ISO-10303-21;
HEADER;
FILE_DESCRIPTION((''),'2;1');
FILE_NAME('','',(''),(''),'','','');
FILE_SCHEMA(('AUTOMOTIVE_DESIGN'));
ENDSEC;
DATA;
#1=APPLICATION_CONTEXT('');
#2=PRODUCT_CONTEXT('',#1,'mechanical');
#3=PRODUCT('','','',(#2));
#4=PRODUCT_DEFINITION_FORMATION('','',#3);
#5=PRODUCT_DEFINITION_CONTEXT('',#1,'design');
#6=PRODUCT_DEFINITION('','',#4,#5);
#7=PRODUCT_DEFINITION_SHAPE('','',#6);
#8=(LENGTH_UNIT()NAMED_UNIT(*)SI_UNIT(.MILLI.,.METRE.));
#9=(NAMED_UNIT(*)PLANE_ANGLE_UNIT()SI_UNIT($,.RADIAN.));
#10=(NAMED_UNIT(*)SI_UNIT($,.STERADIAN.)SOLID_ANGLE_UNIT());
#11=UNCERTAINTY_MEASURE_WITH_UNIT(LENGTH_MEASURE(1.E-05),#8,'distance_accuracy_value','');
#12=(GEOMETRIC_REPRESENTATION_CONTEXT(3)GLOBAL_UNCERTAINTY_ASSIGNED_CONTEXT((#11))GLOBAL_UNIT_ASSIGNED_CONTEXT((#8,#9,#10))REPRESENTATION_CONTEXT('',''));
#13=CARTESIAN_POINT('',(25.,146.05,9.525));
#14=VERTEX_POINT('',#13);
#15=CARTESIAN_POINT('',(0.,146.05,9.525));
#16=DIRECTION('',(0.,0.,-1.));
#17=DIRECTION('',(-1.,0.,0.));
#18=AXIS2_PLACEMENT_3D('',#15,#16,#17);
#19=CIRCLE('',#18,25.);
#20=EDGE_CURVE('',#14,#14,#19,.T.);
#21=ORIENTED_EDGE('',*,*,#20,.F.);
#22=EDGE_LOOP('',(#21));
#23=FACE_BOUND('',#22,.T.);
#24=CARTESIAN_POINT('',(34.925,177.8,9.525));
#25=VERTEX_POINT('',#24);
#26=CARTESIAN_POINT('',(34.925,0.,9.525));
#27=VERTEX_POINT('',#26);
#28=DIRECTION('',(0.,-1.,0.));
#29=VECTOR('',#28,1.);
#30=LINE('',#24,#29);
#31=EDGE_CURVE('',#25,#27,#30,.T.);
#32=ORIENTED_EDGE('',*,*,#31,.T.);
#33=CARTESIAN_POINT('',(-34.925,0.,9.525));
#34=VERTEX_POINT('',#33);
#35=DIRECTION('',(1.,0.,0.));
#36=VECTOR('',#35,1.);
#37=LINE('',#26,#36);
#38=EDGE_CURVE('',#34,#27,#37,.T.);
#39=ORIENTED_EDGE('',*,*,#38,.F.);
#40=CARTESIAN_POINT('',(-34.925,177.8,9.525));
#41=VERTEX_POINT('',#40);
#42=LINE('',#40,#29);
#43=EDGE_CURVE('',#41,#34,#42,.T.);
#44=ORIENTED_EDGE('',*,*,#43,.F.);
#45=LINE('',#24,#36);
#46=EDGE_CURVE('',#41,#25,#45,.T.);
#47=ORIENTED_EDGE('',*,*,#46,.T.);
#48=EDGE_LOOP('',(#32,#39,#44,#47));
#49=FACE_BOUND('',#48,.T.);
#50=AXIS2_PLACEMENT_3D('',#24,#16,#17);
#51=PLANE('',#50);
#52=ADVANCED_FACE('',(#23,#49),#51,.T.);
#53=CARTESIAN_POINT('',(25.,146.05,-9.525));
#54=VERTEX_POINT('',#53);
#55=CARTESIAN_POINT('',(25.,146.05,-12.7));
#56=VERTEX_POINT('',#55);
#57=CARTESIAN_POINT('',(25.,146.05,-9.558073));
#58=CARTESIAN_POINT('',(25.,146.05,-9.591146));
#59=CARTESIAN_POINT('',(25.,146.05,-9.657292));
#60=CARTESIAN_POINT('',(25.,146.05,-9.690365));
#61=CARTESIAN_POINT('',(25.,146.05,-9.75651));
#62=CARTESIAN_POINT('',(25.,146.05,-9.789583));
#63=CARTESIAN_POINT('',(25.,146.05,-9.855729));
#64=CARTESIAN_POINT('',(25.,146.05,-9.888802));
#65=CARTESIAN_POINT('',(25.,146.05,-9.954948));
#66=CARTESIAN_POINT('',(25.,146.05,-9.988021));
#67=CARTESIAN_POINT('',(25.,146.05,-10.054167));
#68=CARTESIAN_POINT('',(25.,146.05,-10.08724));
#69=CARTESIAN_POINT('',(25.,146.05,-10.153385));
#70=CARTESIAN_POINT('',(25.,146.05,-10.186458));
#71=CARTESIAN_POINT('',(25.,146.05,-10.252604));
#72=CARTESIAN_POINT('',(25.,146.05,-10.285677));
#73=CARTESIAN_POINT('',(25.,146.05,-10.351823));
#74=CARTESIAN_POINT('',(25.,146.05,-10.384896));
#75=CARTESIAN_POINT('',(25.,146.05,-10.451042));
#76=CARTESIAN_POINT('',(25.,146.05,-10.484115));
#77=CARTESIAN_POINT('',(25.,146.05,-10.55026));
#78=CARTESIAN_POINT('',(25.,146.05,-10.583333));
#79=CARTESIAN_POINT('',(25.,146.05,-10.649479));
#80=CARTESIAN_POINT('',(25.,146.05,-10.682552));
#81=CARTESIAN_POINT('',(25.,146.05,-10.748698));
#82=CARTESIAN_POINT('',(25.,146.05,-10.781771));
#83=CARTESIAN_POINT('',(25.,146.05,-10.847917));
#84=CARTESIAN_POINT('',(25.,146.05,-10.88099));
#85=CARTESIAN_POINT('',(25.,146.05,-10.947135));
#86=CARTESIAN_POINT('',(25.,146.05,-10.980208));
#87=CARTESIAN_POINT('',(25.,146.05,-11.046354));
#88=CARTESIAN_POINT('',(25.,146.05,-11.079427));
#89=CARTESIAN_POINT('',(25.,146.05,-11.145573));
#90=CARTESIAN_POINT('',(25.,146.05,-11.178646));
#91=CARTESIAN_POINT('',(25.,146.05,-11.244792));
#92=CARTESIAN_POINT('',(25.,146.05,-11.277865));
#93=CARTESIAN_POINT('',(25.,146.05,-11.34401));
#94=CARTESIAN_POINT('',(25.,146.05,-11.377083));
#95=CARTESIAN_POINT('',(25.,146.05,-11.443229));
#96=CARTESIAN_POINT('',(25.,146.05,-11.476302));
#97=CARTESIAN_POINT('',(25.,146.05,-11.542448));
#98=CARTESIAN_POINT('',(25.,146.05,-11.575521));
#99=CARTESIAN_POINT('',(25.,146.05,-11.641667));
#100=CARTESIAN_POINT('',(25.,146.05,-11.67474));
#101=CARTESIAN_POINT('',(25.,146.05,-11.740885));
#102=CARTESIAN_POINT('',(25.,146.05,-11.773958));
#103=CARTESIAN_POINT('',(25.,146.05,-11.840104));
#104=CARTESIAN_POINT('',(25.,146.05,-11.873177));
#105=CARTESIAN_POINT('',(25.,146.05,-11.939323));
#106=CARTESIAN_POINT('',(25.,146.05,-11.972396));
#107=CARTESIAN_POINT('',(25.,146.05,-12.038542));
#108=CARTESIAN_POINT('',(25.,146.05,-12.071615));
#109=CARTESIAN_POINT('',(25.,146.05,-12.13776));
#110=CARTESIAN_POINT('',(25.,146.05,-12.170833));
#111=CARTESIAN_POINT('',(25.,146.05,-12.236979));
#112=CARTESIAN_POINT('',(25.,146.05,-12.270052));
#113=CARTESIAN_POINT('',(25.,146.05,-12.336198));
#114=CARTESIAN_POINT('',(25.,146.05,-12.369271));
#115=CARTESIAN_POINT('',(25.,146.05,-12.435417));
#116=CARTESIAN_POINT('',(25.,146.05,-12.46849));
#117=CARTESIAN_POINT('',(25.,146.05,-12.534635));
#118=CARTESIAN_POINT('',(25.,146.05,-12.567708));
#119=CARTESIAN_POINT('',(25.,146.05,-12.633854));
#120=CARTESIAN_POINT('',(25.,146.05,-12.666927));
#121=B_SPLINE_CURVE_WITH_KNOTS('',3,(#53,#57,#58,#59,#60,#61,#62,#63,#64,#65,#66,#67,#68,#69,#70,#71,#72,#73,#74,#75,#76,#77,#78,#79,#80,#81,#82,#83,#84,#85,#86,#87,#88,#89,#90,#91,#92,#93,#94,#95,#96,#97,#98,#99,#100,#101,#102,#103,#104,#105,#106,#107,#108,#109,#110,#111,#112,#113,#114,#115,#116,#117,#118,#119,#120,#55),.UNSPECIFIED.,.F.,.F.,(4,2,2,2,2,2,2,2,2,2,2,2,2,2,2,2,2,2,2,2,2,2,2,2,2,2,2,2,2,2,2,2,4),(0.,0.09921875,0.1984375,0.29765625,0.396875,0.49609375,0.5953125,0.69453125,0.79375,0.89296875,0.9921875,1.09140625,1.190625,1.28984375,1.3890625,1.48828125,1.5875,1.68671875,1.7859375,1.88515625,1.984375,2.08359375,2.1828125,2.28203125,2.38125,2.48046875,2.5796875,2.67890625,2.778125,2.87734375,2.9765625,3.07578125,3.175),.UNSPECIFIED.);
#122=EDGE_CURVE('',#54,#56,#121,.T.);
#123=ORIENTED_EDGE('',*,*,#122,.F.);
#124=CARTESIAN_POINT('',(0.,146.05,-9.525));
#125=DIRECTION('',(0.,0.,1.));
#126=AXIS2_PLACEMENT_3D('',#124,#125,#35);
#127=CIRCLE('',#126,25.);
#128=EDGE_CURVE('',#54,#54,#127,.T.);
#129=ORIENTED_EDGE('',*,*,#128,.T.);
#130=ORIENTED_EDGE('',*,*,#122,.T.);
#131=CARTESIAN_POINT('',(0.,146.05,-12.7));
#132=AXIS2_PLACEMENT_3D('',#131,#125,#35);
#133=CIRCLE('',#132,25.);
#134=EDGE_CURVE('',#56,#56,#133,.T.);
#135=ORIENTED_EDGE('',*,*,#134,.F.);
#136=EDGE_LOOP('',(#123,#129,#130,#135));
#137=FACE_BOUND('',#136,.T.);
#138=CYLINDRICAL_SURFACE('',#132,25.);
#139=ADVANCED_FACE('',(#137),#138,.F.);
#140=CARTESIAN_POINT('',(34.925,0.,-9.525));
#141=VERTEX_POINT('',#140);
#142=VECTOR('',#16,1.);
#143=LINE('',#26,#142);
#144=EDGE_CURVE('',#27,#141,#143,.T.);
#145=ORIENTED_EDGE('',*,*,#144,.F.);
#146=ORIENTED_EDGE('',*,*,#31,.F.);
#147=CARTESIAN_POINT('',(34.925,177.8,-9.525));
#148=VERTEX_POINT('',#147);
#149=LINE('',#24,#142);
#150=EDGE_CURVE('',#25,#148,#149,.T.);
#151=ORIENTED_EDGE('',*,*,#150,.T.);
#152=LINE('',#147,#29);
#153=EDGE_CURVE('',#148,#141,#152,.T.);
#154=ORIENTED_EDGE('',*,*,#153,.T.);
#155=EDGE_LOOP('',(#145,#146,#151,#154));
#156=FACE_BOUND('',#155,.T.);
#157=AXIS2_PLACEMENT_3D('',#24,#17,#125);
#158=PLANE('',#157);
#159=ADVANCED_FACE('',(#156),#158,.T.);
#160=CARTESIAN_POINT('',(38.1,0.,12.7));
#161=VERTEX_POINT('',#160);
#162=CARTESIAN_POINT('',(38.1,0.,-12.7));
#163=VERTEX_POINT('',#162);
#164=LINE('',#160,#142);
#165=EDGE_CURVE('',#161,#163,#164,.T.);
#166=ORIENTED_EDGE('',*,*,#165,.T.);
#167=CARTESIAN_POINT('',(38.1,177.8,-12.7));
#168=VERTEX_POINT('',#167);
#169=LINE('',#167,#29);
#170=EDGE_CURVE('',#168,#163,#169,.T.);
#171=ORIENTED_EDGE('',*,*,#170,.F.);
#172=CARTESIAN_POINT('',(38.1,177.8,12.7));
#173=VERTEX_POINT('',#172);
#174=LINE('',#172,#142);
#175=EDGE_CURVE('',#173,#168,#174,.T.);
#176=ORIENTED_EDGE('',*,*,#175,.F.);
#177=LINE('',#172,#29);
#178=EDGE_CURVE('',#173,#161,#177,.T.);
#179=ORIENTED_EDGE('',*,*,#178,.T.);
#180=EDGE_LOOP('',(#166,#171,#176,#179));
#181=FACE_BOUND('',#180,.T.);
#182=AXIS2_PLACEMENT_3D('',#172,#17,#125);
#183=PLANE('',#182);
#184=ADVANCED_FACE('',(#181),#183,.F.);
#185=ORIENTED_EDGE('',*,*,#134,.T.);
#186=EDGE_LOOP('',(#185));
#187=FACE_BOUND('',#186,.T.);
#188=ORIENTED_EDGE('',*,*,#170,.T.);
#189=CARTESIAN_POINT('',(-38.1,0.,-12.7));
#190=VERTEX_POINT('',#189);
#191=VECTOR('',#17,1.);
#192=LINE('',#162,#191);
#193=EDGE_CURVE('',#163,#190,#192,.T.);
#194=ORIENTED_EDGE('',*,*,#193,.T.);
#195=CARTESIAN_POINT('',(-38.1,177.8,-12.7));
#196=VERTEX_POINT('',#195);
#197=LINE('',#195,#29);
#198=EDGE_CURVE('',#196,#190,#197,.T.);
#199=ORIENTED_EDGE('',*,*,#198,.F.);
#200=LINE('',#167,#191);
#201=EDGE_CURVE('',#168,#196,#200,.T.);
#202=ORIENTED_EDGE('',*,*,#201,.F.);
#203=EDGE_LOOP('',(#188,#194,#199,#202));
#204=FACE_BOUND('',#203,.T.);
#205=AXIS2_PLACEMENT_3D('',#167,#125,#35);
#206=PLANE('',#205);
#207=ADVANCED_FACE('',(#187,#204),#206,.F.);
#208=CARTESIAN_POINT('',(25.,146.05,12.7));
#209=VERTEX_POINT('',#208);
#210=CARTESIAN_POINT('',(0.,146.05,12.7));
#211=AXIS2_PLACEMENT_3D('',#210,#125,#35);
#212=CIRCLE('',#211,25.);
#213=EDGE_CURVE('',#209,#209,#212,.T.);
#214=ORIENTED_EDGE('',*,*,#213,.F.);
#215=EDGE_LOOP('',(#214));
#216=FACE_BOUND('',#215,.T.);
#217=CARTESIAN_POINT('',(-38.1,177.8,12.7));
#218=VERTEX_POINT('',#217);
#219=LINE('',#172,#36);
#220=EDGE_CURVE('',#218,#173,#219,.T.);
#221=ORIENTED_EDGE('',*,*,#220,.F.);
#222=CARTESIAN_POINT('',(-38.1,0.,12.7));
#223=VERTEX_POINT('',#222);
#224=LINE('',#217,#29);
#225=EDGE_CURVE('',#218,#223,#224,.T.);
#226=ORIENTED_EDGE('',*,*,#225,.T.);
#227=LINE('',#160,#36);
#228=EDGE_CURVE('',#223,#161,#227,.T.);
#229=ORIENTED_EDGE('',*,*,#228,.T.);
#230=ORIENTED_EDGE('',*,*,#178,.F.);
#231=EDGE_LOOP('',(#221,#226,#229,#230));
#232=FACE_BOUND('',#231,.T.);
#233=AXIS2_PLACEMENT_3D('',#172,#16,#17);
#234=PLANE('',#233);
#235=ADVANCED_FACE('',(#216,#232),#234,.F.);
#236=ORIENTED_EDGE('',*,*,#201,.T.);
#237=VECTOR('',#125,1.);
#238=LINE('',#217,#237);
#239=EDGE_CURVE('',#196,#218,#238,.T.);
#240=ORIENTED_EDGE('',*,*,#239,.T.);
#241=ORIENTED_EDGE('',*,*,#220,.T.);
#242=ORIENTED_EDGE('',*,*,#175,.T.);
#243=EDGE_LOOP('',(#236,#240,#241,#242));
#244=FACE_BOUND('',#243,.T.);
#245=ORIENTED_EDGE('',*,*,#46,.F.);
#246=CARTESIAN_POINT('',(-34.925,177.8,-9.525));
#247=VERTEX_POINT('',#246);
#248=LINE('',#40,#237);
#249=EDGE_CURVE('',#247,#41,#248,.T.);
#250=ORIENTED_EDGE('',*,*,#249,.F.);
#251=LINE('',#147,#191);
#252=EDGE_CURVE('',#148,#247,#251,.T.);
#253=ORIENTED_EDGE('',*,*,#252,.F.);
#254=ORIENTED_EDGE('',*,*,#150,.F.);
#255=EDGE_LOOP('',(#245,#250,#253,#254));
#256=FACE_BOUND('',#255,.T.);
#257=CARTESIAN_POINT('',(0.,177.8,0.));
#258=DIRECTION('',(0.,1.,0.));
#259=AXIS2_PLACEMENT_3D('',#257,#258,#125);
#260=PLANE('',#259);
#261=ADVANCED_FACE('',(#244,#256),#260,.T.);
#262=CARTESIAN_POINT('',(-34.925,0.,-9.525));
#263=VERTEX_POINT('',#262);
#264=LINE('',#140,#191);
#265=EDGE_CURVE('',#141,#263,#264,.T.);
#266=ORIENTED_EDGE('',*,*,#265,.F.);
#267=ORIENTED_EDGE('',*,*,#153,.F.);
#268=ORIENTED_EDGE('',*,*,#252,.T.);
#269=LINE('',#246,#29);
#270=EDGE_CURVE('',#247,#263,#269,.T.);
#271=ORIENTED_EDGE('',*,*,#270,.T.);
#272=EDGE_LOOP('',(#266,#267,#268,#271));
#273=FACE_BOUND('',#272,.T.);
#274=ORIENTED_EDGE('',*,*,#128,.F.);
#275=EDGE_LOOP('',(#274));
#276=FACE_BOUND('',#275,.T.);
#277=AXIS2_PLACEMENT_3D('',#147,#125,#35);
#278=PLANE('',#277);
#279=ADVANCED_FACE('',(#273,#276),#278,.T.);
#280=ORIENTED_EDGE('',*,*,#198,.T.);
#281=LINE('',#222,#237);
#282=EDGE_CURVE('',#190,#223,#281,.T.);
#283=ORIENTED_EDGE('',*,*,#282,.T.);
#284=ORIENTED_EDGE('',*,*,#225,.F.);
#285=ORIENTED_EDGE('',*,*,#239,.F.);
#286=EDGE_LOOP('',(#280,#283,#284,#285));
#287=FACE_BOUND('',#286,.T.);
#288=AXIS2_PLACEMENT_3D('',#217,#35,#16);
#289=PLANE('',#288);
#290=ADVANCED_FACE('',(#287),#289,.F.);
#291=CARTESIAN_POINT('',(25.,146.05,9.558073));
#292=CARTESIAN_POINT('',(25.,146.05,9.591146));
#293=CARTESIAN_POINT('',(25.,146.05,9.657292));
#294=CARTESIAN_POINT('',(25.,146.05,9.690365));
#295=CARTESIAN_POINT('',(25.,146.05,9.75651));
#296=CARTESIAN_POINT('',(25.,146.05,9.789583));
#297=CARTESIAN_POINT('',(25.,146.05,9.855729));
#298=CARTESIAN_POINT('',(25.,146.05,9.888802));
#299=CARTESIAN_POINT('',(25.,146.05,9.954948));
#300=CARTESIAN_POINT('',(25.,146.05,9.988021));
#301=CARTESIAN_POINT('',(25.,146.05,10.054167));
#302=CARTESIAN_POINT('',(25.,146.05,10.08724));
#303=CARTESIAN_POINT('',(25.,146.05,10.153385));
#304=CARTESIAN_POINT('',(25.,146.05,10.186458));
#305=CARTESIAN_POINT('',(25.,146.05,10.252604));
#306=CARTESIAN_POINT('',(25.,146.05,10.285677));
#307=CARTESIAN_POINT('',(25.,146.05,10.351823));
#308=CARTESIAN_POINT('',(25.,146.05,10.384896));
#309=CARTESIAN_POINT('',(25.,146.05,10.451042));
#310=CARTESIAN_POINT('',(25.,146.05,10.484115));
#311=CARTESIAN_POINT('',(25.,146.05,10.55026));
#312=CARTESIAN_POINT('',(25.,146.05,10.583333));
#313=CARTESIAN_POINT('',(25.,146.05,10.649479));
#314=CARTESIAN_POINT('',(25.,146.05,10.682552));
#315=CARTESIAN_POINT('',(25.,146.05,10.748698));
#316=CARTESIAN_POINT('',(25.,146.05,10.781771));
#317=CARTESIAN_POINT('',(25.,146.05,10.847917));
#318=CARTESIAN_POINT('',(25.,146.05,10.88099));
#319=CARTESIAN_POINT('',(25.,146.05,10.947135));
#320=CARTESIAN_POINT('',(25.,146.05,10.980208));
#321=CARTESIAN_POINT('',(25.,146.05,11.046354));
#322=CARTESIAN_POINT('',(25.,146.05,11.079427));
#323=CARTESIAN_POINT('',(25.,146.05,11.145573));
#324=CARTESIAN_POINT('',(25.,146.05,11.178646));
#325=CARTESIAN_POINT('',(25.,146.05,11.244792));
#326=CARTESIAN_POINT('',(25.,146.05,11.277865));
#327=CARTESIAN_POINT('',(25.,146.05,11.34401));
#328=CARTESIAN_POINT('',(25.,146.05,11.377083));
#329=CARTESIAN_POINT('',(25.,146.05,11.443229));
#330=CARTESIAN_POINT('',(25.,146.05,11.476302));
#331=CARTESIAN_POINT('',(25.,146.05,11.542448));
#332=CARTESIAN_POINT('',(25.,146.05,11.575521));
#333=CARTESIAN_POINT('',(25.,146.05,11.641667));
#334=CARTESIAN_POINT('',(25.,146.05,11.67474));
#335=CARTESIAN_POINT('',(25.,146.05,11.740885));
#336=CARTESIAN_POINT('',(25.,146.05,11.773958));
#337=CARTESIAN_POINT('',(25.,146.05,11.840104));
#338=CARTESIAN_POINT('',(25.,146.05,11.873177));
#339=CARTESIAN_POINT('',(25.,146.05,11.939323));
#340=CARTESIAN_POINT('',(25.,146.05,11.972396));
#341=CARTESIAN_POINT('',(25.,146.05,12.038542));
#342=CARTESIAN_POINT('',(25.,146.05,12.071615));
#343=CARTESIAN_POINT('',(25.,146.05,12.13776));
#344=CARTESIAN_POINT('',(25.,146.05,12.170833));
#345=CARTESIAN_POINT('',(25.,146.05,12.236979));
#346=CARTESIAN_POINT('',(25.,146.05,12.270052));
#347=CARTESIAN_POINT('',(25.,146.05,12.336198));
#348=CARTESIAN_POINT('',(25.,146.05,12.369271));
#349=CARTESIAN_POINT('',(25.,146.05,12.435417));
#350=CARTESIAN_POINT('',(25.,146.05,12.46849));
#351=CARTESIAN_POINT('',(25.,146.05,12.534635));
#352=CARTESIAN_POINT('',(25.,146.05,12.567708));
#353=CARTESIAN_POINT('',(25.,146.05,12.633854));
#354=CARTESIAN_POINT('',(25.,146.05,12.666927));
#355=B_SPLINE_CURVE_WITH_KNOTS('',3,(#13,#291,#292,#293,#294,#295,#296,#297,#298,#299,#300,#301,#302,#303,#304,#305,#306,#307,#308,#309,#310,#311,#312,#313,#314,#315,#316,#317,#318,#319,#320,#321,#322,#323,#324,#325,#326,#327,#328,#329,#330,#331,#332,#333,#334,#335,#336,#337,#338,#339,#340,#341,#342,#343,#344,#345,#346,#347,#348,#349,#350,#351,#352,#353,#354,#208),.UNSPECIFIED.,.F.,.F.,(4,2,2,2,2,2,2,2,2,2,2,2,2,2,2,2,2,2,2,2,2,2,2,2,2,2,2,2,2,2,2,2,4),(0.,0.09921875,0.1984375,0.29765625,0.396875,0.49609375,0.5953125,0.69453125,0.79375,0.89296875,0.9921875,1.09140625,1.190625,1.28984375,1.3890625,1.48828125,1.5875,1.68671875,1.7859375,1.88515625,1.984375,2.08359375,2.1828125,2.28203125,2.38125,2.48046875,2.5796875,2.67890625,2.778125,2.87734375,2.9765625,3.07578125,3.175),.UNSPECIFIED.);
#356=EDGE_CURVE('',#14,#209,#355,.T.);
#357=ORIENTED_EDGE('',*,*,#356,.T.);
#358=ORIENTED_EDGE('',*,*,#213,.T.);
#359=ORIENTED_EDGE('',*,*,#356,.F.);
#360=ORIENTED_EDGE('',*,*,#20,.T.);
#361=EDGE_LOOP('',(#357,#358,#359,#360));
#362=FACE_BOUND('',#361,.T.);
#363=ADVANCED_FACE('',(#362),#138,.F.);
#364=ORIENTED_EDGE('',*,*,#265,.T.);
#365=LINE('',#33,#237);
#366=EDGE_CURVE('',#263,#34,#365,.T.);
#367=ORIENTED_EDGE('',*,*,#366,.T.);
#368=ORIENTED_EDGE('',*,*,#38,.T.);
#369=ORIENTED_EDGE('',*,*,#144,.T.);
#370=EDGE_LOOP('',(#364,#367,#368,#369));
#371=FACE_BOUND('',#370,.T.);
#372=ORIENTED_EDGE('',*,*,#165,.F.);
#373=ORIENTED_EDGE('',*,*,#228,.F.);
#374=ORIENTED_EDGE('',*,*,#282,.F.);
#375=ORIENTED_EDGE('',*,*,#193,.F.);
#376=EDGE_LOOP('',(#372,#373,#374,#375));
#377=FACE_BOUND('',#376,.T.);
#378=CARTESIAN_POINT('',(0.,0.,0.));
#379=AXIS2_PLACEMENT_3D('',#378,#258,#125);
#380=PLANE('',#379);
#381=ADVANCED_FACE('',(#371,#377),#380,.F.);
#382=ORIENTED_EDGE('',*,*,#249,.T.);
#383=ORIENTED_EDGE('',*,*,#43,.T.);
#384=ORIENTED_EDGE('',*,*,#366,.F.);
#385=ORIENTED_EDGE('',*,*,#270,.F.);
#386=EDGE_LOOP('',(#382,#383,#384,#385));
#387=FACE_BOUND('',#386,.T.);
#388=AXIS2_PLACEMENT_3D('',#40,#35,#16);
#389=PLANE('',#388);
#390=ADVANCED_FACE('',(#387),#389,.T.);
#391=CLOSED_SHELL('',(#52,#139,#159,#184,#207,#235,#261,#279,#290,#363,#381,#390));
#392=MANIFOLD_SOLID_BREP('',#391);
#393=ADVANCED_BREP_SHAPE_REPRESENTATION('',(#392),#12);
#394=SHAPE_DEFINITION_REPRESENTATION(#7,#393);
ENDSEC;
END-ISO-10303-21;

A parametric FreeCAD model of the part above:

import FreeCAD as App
import Part
import Sketcher
Q = App.Units.Quantity


def add_polygon(sketch, points):
    """Adds a closed chain of lines whose ends are joined by coincident constraints."""
    first, n = sketch.GeometryCount, len(points)
    for a, b in zip(points, points[1:] + points[:1]):
        sketch.addGeometry(Part.LineSegment(App.Vector(*a, 0), App.Vector(*b, 0)), False)
    for i in range(n):
        sketch.addConstraint(Sketcher.Constraint("Coincident", first + i, 2, first + (i + 1) % n, 1))

doc = App.newDocument("Part")
body = doc.addObject("PartDesign::Body", "Body")

# Sketch on XZ plane
sketch1 = body.newObject("Sketcher::SketchObject", "Sketch")
sketch1.AttachmentSupport = (doc.getObject("XZ_Plane"), [""])
sketch1.MapMode = "FlatFace"
add_polygon(sketch1, [(-38, -13), (-38, 13), (38, 13), (38, -13)])  # lines 0-3
add_polygon(sketch1, [(35, 10), (-35, 10), (-35, -10), (35, -10)])  # lines 4-7
sketch1.addConstraint(Sketcher.Constraint("Vertical", 0))
sketch1.addConstraint(Sketcher.Constraint("Horizontal", 1))
sketch1.addConstraint(Sketcher.Constraint("Vertical", 2))
sketch1.addConstraint(Sketcher.Constraint("Horizontal", 3))
sketch1.addConstraint(Sketcher.Constraint("Horizontal", 4))
sketch1.addConstraint(Sketcher.Constraint("Vertical", 5))
sketch1.addConstraint(Sketcher.Constraint("Horizontal", 6))
sketch1.addConstraint(Sketcher.Constraint("Vertical", 7))
sketch1.addConstraint(Sketcher.Constraint("Symmetric", 0, 2, 2, 2, -1, 1))
sketch1.addConstraint(Sketcher.Constraint("Symmetric", 4, 2, 6, 2, -1, 1))
sketch1.addConstraint(Sketcher.Constraint("DistanceX", 1, 1, 1, 2, Q("3 in")))
sketch1.addConstraint(Sketcher.Constraint("DistanceY", 0, 1, 0, 2, Q("1 in")))
sketch1.addConstraint(Sketcher.Constraint("DistanceX", 4, 2, 4, 1, Q("2.75 in")))
sketch1.addConstraint(Sketcher.Constraint("DistanceY", 5, 2, 5, 1, Q("0.75 in")))
pad1 = body.newObject("PartDesign::Pad", "Pad")
pad1.Profile = sketch1
pad1.Length = Q("7 in")
pad1.Reversed = True

# Sketch on XY plane
sketch2 = body.newObject("Sketcher::SketchObject", "Sketch001")
sketch2.AttachmentSupport = (doc.getObject("XY_Plane"), [""])
sketch2.MapMode = "FlatFace"
sketch2.AttachmentOffset = App.Placement(App.Vector(0, 0, 0.5 * 25.4), App.Rotation())
sketch2.addGeometry(Part.Circle(App.Vector(0, 146, 0), App.Vector(0, 0, 1), 25), False)
sketch2.addConstraint(Sketcher.Constraint("PointOnObject", 0, 3, -2))
sketch2.addConstraint(Sketcher.Constraint("Diameter", 0, Q("50 mm")))
sketch2.addConstraint(Sketcher.Constraint("DistanceY", -1, 1, 0, 3, Q("5.75 in")))
pocket1 = body.newObject("PartDesign::Pocket", "Pocket")
pocket1.Profile = sketch2
pocket1.Type = "ThroughAll"

doc.recompute()
